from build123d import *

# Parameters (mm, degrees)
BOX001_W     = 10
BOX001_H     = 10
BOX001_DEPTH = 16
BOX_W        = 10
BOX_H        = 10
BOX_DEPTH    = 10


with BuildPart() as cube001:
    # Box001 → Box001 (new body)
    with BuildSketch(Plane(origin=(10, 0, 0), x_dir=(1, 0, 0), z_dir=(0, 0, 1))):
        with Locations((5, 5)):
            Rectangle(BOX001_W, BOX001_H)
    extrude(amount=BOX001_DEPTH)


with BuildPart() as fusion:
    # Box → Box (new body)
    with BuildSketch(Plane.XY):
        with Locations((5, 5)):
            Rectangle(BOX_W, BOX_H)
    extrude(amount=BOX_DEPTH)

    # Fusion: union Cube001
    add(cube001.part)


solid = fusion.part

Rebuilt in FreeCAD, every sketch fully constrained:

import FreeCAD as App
import Part
import Sketcher
from FreeCAD import Vector

doc = App.newDocument("Part")
params = doc.addObject("Spreadsheet::Sheet", "Params")
for row, (alias, value) in enumerate([
    ("sketch1_width", "10 mm"),
    ("pad1_length", "16 mm"),
    ("sketch2_width", "10 mm"),
    ("pad2_length", "10 mm"),
], start=1):
    params.set(f"A{row}", alias)
    params.set(f"B{row}", "=" + value)
    params.setAlias(f"B{row}", alias)

body = doc.addObject("PartDesign::Body", "Body")

sketch1 = body.newObject("Sketcher::SketchObject", "Sketch")
sketch1.AttachmentSupport = (doc.getObject("XY_Plane"), [""])
sketch1.MapMode = "FlatFace"
sketch1.addGeometry([
    Part.LineSegment(Vector(10, 10, 0), Vector(10, 0, 0)),
    Part.LineSegment(Vector(10, 0, 0), Vector(20, 0, 0)),
    Part.LineSegment(Vector(20, 0, 0), Vector(20, 10, 0)),
    Part.LineSegment(Vector(20, 10, 0), Vector(10, 10, 0)),
], False)
sketch1.addConstraint([
    Sketcher.Constraint("Coincident", 0, 2, 1, 1),
    Sketcher.Constraint("Coincident", 1, 2, 2, 1),
    Sketcher.Constraint("Coincident", 2, 2, 3, 1),
    Sketcher.Constraint("Coincident", 3, 2, 0, 1),
    Sketcher.Constraint("Vertical", 0),
    Sketcher.Constraint("Horizontal", 1),
    Sketcher.Constraint("Vertical", 2),
    Sketcher.Constraint("Horizontal", 3),
    Sketcher.Constraint("PointOnObject", 0, 2, -1),
    Sketcher.Constraint("Equal", 3, 0),
    Sketcher.Constraint("DistanceX", 1, 1, 1, 2, 10.0),
    Sketcher.Constraint("DistanceX", -1, 1, 0, 2, 10.0),
])
sketch1.setExpression("Constraints[10]", "Params.sketch1_width")
pad1 = body.newObject("PartDesign::Pad", "Pad")
pad1.Profile = sketch1
pad1.setExpression("Length", "Params.pad1_length")
body2 = doc.addObject("PartDesign::Body", "Body001")

sketch2 = body2.newObject("Sketcher::SketchObject", "Sketch001")
sketch2.AttachmentSupport = (doc.getObject("XY_Plane001"), [""])
sketch2.MapMode = "FlatFace"
sketch2.addGeometry([
    Part.LineSegment(Vector(0, 10, 0), Vector(0, 0, 0)),
    Part.LineSegment(Vector(0, 0, 0), Vector(10, 0, 0)),
    Part.LineSegment(Vector(10, 0, 0), Vector(10, 10, 0)),
    Part.LineSegment(Vector(10, 10, 0), Vector(0, 10, 0)),
], False)
sketch2.addConstraint([
    Sketcher.Constraint("Coincident", 0, 2, 1, 1),
    Sketcher.Constraint("Coincident", 1, 2, 2, 1),
    Sketcher.Constraint("Coincident", 2, 2, 3, 1),
    Sketcher.Constraint("Coincident", 3, 2, 0, 1),
    Sketcher.Constraint("Vertical", 0),
    Sketcher.Constraint("Horizontal", 1),
    Sketcher.Constraint("Vertical", 2),
    Sketcher.Constraint("Horizontal", 3),
    Sketcher.Constraint("Coincident", 0, 2, -1, 1),
    Sketcher.Constraint("Equal", 3, 0),
    Sketcher.Constraint("DistanceX", 1, 1, 1, 2, 10.0),
])
sketch2.setExpression("Constraints[10]", "Params.sketch2_width")
pad2 = body2.newObject("PartDesign::Pad", "Pad001")
pad2.Profile = sketch2
pad2.setExpression("Length", "Params.pad2_length")
doc.recompute()

boolean = body2.newObject("PartDesign::Boolean", "Boolean")
boolean.Type = "Fuse"
boolean.addObjects([body])

doc.recompute()
